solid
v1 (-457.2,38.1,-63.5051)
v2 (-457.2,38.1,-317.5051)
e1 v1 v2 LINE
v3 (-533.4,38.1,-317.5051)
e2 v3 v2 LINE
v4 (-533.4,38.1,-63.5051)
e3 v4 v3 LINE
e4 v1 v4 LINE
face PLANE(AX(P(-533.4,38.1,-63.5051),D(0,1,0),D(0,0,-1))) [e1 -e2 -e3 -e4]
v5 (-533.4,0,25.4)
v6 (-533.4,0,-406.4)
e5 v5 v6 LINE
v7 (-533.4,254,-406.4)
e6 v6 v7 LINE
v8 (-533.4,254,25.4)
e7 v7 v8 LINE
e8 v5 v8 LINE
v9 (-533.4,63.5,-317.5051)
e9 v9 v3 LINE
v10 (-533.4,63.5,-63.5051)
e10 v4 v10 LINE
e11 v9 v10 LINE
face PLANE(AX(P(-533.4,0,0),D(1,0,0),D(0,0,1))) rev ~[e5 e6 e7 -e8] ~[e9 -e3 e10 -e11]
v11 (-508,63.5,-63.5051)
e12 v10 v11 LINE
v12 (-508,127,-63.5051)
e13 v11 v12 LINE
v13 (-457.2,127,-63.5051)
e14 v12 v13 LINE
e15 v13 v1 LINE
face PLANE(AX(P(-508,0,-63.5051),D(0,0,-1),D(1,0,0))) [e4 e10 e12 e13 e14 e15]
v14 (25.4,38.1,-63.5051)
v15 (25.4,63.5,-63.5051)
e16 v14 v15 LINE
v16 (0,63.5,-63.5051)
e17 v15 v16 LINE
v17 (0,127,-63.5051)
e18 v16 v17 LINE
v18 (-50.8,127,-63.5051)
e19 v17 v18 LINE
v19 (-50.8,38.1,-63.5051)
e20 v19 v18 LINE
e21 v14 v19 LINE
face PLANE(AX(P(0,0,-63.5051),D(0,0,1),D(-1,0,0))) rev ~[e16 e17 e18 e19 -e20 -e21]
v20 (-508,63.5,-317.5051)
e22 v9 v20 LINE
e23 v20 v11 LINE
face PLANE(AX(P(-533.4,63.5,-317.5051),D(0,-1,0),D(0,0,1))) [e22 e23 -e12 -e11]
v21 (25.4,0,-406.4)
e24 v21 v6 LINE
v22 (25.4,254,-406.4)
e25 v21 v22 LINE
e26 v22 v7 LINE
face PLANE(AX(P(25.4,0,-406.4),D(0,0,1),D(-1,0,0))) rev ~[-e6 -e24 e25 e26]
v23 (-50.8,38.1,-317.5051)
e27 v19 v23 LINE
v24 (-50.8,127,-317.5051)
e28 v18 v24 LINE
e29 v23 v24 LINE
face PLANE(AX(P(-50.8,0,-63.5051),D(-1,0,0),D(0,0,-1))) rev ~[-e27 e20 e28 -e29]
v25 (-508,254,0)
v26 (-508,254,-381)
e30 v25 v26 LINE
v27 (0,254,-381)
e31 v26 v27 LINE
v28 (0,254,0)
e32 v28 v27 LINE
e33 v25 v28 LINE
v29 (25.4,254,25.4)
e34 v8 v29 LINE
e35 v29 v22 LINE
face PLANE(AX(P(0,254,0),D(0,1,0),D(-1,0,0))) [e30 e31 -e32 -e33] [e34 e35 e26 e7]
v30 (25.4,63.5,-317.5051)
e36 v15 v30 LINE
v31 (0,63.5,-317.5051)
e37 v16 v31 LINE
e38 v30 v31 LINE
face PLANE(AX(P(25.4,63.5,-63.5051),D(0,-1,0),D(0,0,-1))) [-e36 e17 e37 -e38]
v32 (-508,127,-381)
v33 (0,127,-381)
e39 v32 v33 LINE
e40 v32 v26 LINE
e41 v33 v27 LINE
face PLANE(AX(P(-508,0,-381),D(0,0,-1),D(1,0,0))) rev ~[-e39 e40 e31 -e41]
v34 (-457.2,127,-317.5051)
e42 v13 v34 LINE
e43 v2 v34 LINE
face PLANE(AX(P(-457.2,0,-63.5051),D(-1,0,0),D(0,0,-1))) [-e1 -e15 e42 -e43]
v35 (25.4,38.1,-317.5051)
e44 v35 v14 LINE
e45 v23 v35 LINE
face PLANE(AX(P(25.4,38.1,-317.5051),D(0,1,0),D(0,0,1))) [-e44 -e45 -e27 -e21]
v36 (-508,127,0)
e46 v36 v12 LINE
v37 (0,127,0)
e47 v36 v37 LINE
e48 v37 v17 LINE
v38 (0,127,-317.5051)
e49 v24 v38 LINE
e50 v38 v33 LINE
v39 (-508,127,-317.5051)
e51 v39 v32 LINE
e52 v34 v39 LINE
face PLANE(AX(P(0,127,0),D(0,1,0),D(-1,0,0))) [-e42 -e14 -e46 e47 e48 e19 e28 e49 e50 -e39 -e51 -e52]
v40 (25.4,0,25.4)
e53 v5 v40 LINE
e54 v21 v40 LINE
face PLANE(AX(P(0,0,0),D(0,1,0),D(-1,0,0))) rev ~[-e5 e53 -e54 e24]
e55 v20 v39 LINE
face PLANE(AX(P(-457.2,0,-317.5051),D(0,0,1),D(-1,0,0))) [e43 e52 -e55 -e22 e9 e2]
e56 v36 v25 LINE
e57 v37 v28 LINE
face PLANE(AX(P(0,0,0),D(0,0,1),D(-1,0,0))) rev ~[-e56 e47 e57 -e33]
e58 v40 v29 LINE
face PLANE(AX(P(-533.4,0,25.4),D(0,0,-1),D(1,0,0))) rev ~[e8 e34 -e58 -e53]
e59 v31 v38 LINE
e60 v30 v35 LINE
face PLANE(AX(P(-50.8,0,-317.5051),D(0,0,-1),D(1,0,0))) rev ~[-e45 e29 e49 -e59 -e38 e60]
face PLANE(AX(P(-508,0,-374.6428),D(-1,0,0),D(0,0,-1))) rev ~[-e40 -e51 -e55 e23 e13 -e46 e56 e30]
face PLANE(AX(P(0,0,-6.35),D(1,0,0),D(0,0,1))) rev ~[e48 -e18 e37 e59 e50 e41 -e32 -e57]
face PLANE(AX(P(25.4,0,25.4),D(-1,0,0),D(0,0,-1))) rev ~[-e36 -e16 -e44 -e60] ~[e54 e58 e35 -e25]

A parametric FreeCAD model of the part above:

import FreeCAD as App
import Part
import Sketcher

V = App.Vector
Q = App.Units.Quantity

doc = App.newDocument("Part")
params = doc.addObject("Spreadsheet::Sheet", "Params")
for row, (alias, value) in enumerate([
    ("sketch1_width", "22 in"),
    ("sketch1_width2", "20 in"),
    ("sketch1_height", "17 in"),
    ("sketch1_height2", "15 in"),
    ("pad1_length", "10 in"),
    ("sketch2_width", "20 in"),
    ("sketch2_width2", "2 in"),
    ("sketch2_height", "10 in"),
    ("sketch2_height2", "0.25 in"),
    ("pad2_length", "5 in"),
    ("sketch3_width", "2 in"),
    ("pad3_length", "5 in"),
    ("sketch4_width", "2 in"),
    ("sketch4_height", "10 in"),
    ("pad4_length", "1.5 in"),
    ("sketch5_width", "1 in"),
    ("sketch5_height", "10 in"),
    ("pocket1_length", "3 in"),
    ("sketch6_width", "1 in"),
    ("sketch6_height", "10 in"),
    ("pocket2_length", "3 in"),
], start=1):
    params.set(f"A{row}", alias)
    params.set(f"B{row}", "=" + value)
    params.setAlias(f"B{row}", alias)

body = doc.addObject("PartDesign::Body", "Body")

sketch1 = doc.addObject("Sketcher::SketchObject", "Sketch")
body.addObject(sketch1)
sketch1.AttachmentSupport = (doc.XZ_Plane, [""])
sketch1.MapMode = "FlatFace"
sketch1.addGeometry([
    Part.LineSegment(V(25, 25, 0), V(25, -406, 0)),
    Part.LineSegment(V(25, -406, 0), V(-533, -406, 0)),
    Part.LineSegment(V(-533, -406, 0), V(-533, 25, 0)),
    Part.LineSegment(V(-533, 25, 0), V(25, 25, 0)),
    Part.LineSegment(V(0, 0, 0), V(-508, 0, 0)),
    Part.LineSegment(V(-508, 0, 0), V(-508, -381, 0)),
    Part.LineSegment(V(-508, -381, 0), V(0, -381, 0)),
    Part.LineSegment(V(0, -381, 0), V(0, 0, 0)),
], False)
sketch1.addConstraint([
    Sketcher.Constraint("Coincident", 0, 2, 1, 1),
    Sketcher.Constraint("Coincident", 1, 2, 2, 1),
    Sketcher.Constraint("Coincident", 2, 2, 3, 1),
    Sketcher.Constraint("Coincident", 3, 2, 0, 1),
    Sketcher.Constraint("Coincident", 4, 2, 5, 1),
    Sketcher.Constraint("Coincident", 5, 2, 6, 1),
    Sketcher.Constraint("Coincident", 6, 2, 7, 1),
    Sketcher.Constraint("Coincident", 7, 2, 4, 1),
    Sketcher.Constraint("Vertical", 0),
    Sketcher.Constraint("Horizontal", 1),
    Sketcher.Constraint("Vertical", 2),
    Sketcher.Constraint("Horizontal", 3),
    Sketcher.Constraint("Horizontal", 4),
    Sketcher.Constraint("Vertical", 5),
    Sketcher.Constraint("Horizontal", 6),
    Sketcher.Constraint("Vertical", 7),
    Sketcher.Constraint("Coincident", 7, 2, -1, 1),
    Sketcher.Constraint("DistanceX", 1, 2, 1, 1, Q("22 in")),
    Sketcher.Constraint("DistanceX", 4, 2, 4, 1, Q("20 in")),
    Sketcher.Constraint("DistanceY", 0, 2, 0, 1, Q("17 in")),
    Sketcher.Constraint("DistanceY", 5, 2, 5, 1, Q("15 in")),
    Sketcher.Constraint("DistanceX", -1, 1, 0, 2, Q("1 in")),
    Sketcher.Constraint("DistanceY", 0, 2, -1, 1, Q("16 in")),
])
sketch1.setExpression("Constraints[17]", "Params.sketch1_width")
sketch1.setExpression("Constraints[18]", "Params.sketch1_width2")
sketch1.setExpression("Constraints[19]", "Params.sketch1_height")
sketch1.setExpression("Constraints[20]", "Params.sketch1_height2")
pad1 = doc.addObject("PartDesign::Pad", "Pad")
body.addObject(pad1)
pad1.Profile = sketch1
pad1.setExpression("Length", "Params.pad1_length")
pad1.Reversed = True

sketch2 = doc.addObject("Sketcher::SketchObject", "Sketch001")
body.addObject(sketch2)
sketch2.AttachmentSupport = (doc.XZ_Plane, [""])
sketch2.MapMode = "FlatFace"
sketch2.addGeometry([
    Part.LineSegment(V(-508, 0, 0), V(0, 0, 0)),
    Part.LineSegment(V(0, 0, 0), V(0, -6, 0)),
    Part.LineSegment(V(0, -6, 0), V(-51, -6, 0)),
    Part.LineSegment(V(-51, -6, 0), V(-51, -57, 0)),
    Part.LineSegment(V(-51, -57, 0), V(0, -57, 0)),
    Part.LineSegment(V(0, -57, 0), V(0, -64, 0)),
    Part.LineSegment(V(0, -64, 0), V(-51, -64, 0)),
    Part.LineSegment(V(-51, -64, 0), V(-51, -318, 0)),
    Part.LineSegment(V(-51, -318, 0), V(0, -318, 0)),
    Part.LineSegment(V(0, -318, 0), V(0, -324, 0)),
    Part.LineSegment(V(0, -324, 0), V(-51, -324, 0)),
    Part.LineSegment(V(-51, -324, 0), V(-51, -375, 0)),
    Part.LineSegment(V(-51, -375, 0), V(0, -375, 0)),
    Part.LineSegment(V(0, -375, 0), V(0, -381, 0)),
    Part.LineSegment(V(0, -381, 0), V(-508, -381, 0)),
    Part.LineSegment(V(-508, -381, 0), V(-508, -375, 0)),
    Part.LineSegment(V(-508, -375, 0), V(-457, -375, 0)),
    Part.LineSegment(V(-457, -375, 0), V(-457, -324, 0)),
    Part.LineSegment(V(-457, -324, 0), V(-508, -324, 0)),
    Part.LineSegment(V(-508, -324, 0), V(-508, -318, 0)),
    Part.LineSegment(V(-508, -318, 0), V(-457, -318, 0)),
    Part.LineSegment(V(-457, -318, 0), V(-457, -64, 0)),
    Part.LineSegment(V(-457, -64, 0), V(-508, -64, 0)),
    Part.LineSegment(V(-508, -64, 0), V(-508, -57, 0)),
    Part.LineSegment(V(-508, -57, 0), V(-457, -57, 0)),
    Part.LineSegment(V(-457, -57, 0), V(-457, -6, 0)),
    Part.LineSegment(V(-457, -6, 0), V(-508, -6, 0)),
    Part.LineSegment(V(-508, -6, 0), V(-508, 0, 0)),
], False)
sketch2.addConstraint([
    Sketcher.Constraint("Coincident", 0, 2, 1, 1),
    Sketcher.Constraint("Coincident", 1, 2, 2, 1),
    Sketcher.Constraint("Coincident", 2, 2, 3, 1),
    Sketcher.Constraint("Coincident", 3, 2, 4, 1),
    Sketcher.Constraint("Coincident", 4, 2, 5, 1),
    Sketcher.Constraint("Coincident", 5, 2, 6, 1),
    Sketcher.Constraint("Coincident", 6, 2, 7, 1),
    Sketcher.Constraint("Coincident", 7, 2, 8, 1),
    Sketcher.Constraint("Coincident", 8, 2, 9, 1),
    Sketcher.Constraint("Coincident", 9, 2, 10, 1),
    Sketcher.Constraint("Coincident", 10, 2, 11, 1),
    Sketcher.Constraint("Coincident", 11, 2, 12, 1),
    Sketcher.Constraint("Coincident", 12, 2, 13, 1),
    Sketcher.Constraint("Coincident", 13, 2, 14, 1),
    Sketcher.Constraint("Coincident", 14, 2, 15, 1),
    Sketcher.Constraint("Coincident", 15, 2, 16, 1),
    Sketcher.Constraint("Coincident", 16, 2, 17, 1),
    Sketcher.Constraint("Coincident", 17, 2, 18, 1),
    Sketcher.Constraint("Coincident", 18, 2, 19, 1),
    Sketcher.Constraint("Coincident", 19, 2, 20, 1),
    Sketcher.Constraint("Coincident", 20, 2, 21, 1),
    Sketcher.Constraint("Coincident", 21, 2, 22, 1),
    Sketcher.Constraint("Coincident", 22, 2, 23, 1),
    Sketcher.Constraint("Coincident", 23, 2, 24, 1),
    Sketcher.Constraint("Coincident", 24, 2, 25, 1),
    Sketcher.Constraint("Coincident", 25, 2, 26, 1),
    Sketcher.Constraint("Coincident", 26, 2, 27, 1),
    Sketcher.Constraint("Coincident", 27, 2, 0, 1),
    Sketcher.Constraint("Horizontal", 0),
    Sketcher.Constraint("Vertical", 1),
    Sketcher.Constraint("Horizontal", 2),
    Sketcher.Constraint("Vertical", 3),
    Sketcher.Constraint("Horizontal", 4),
    Sketcher.Constraint("Vertical", 5),
    Sketcher.Constraint("Horizontal", 6),
    Sketcher.Constraint("Vertical", 7),
    Sketcher.Constraint("Horizontal", 8),
    Sketcher.Constraint("Vertical", 9),
    Sketcher.Constraint("Horizontal", 10),
    Sketcher.Constraint("Vertical", 11),
    Sketcher.Constraint("Horizontal", 12),
    Sketcher.Constraint("Vertical", 13),
    Sketcher.Constraint("Horizontal", 14),
    Sketcher.Constraint("Vertical", 15),
    Sketcher.Constraint("Horizontal", 16),
    Sketcher.Constraint("Vertical", 17),
    Sketcher.Constraint("Horizontal", 18),
    Sketcher.Constraint("Vertical", 19),
    Sketcher.Constraint("Horizontal", 20),
    Sketcher.Constraint("Vertical", 21),
    Sketcher.Constraint("Horizontal", 22),
    Sketcher.Constraint("Vertical", 23),
    Sketcher.Constraint("Horizontal", 24),
    Sketcher.Constraint("Vertical", 25),
    Sketcher.Constraint("Horizontal", 26),
    Sketcher.Constraint("Vertical", 27),
    Sketcher.Constraint("Coincident", 0, 2, -1, 1),
    Sketcher.Constraint("PointOnObject", 4, 2, -2),
    Sketcher.Constraint("PointOnObject", 8, 2, -2),
    Sketcher.Constraint("PointOnObject", 12, 2, -2),
    Sketcher.Constraint("Horizontal", 12, 2, 15, 2),
    Sketcher.Constraint("Horizontal", 10, 2, 17, 2),
    Sketcher.Constraint("Horizontal", 8, 2, 19, 2),
    Sketcher.Constraint("Horizontal", 6, 2, 21, 2),
    Sketcher.Constraint("Horizontal", 4, 2, 23, 2),
    Sketcher.Constraint("Horizontal", 2, 2, 25, 2),
    Sketcher.Constraint("Vertical", 3, 2, 6, 2),
    Sketcher.Constraint("Vertical", 7, 2, 10, 2),
    Sketcher.Constraint("Vertical", 15, 2, 18, 2),
    Sketcher.Constraint("Vertical", 17, 2, 20, 2),
    Sketcher.Constraint("Vertical", 19, 2, 22, 2),
    Sketcher.Constraint("Vertical", 21, 2, 24, 2),
    Sketcher.Constraint("Vertical", 23, 2, 26, 2),
    Sketcher.Constraint("Equal", 12, 16),
    Sketcher.Constraint("Equal", 1, 5),
    Sketcher.Constraint("DistanceX", 0, 1, 0, 2, Q("20 in")),
    Sketcher.Constraint("DistanceX", 2, 2, 2, 1, Q("2 in")),
    Sketcher.Constraint("DistanceY", 7, 2, 7, 1, Q("10 in")),
    Sketcher.Constraint("DistanceY", 13, 2, -1, 1, Q("15 in")),
    Sketcher.Constraint("DistanceY", 1, 2, 1, 1, Q("0.25 in")),
    Sketcher.Constraint("DistanceY", 3, 2, 3, 1, Q("2.0002 in")),
    Sketcher.Constraint("DistanceY", 11, 2, 11, 1, Q("1.9998 in")),
    Sketcher.Constraint("DistanceY", 9, 2, 9, 1, 6.3427),
])
sketch2.setExpression("Constraints[75]", "Params.sketch2_width")
sketch2.setExpression("Constraints[76]", "Params.sketch2_width2")
sketch2.setExpression("Constraints[77]", "Params.sketch2_height")
sketch2.setExpression("Constraints[79]", "Params.sketch2_height2")
pad2 = doc.addObject("PartDesign::Pad", "Pad001")
body.addObject(pad2)
pad2.Profile = sketch2
pad2.setExpression("Length", "Params.pad2_length")
pad2.Reversed = True

sketch3 = doc.addObject("Sketcher::SketchObject", "Sketch002")
body.addObject(sketch3)
sketch3.AttachmentSupport = (doc.XZ_Plane, [""])
sketch3.MapMode = "FlatFace"
sketch3.addGeometry([
    Part.LineSegment(V(-51, -6, 0), V(0, -6, 0)),
    Part.LineSegment(V(0, -6, 0), V(0, -57, 0)),
    Part.LineSegment(V(0, -57, 0), V(-51, -57, 0)),
    Part.LineSegment(V(-51, -57, 0), V(-51, -6, 0)),
    Part.LineSegment(V(-508, -57, 0), V(-508, -6, 0)),
    Part.LineSegment(V(-508, -6, 0), V(-457, -6, 0)),
    Part.LineSegment(V(-457, -6, 0), V(-457, -57, 0)),
    Part.LineSegment(V(-457, -57, 0), V(-508, -57, 0)),
    Part.LineSegment(V(-508, -375, 0), V(-508, -324, 0)),
    Part.LineSegment(V(-508, -324, 0), V(-457, -324, 0)),
    Part.LineSegment(V(-457, -324, 0), V(-457, -375, 0)),
    Part.LineSegment(V(-457, -375, 0), V(-508, -375, 0)),
    Part.LineSegment(V(-51, -324, 0), V(0, -324, 0)),
    Part.LineSegment(V(0, -324, 0), V(0, -375, 0)),
    Part.LineSegment(V(0, -375, 0), V(-51, -375, 0)),
    Part.LineSegment(V(-51, -375, 0), V(-51, -324, 0)),
], False)
sketch3.addConstraint([
    Sketcher.Constraint("Coincident", 0, 2, 1, 1),
    Sketcher.Constraint("Coincident", 1, 2, 2, 1),
    Sketcher.Constraint("Coincident", 2, 2, 3, 1),
    Sketcher.Constraint("Coincident", 3, 2, 0, 1),
    Sketcher.Constraint("Coincident", 4, 2, 5, 1),
    Sketcher.Constraint("Coincident", 5, 2, 6, 1),
    Sketcher.Constraint("Coincident", 6, 2, 7, 1),
    Sketcher.Constraint("Coincident", 7, 2, 4, 1),
    Sketcher.Constraint("Coincident", 8, 2, 9, 1),
    Sketcher.Constraint("Coincident", 9, 2, 10, 1),
    Sketcher.Constraint("Coincident", 10, 2, 11, 1),
    Sketcher.Constraint("Coincident", 11, 2, 8, 1),
    Sketcher.Constraint("Coincident", 12, 2, 13, 1),
    Sketcher.Constraint("Coincident", 13, 2, 14, 1),
    Sketcher.Constraint("Coincident", 14, 2, 15, 1),
    Sketcher.Constraint("Coincident", 15, 2, 12, 1),
    Sketcher.Constraint("Horizontal", 0),
    Sketcher.Constraint("Vertical", 1),
    Sketcher.Constraint("Horizontal", 2),
    Sketcher.Constraint("Vertical", 3),
    Sketcher.Constraint("Vertical", 4),
    Sketcher.Constraint("Horizontal", 5),
    Sketcher.Constraint("Vertical", 6),
    Sketcher.Constraint("Horizontal", 7),
    Sketcher.Constraint("Vertical", 8),
    Sketcher.Constraint("Horizontal", 9),
    Sketcher.Constraint("Vertical", 10),
    Sketcher.Constraint("Horizontal", 11),
    Sketcher.Constraint("Horizontal", 12),
    Sketcher.Constraint("Vertical", 13),
    Sketcher.Constraint("Horizontal", 14),
    Sketcher.Constraint("Vertical", 15),
    Sketcher.Constraint("PointOnObject", 0, 2, -2),
    Sketcher.Constraint("PointOnObject", 12, 2, -2),
    Sketcher.Constraint("Horizontal", 3, 2, 4, 2),
    Sketcher.Constraint("Horizontal", 2, 2, 6, 2),
    Sketcher.Constraint("Horizontal", 9, 2, 12, 2),
    Sketcher.Constraint("Horizontal", 11, 2, 13, 2),
    Sketcher.Constraint("Vertical", 7, 2, 8, 2),
    Sketcher.Constraint("Vertical", 6, 2, 9, 2),
    Sketcher.Constraint("Vertical", 3, 2, 14, 2),
    Sketcher.Constraint("Equal", 2, 5),
    Sketcher.Constraint("DistanceX", 0, 1, 0, 2, Q("2 in")),
    Sketcher.Constraint("DistanceX", 4, 2, -1, 1, Q("20 in")),
    Sketcher.Constraint("DistanceY", 0, 2, -1, 1, Q("0.25 in")),
    Sketcher.Constraint("DistanceY", 1, 2, 1, 1, Q("2.0002 in")),
    Sketcher.Constraint("DistanceY", 8, 1, 8, 2, Q("1.9998 in")),
    Sketcher.Constraint("DistanceY", 8, 2, -1, 1, 323.8478),
])
sketch3.setExpression("Constraints[42]", "Params.sketch3_width")
pad3 = doc.addObject("PartDesign::Pad", "Pad002")
body.addObject(pad3)
pad3.Profile = sketch3
pad3.setExpression("Length", "Params.pad3_length")
pad3.Reversed = True

sketch4 = doc.addObject("Sketcher::SketchObject", "Sketch003")
body.addObject(sketch4)
sketch4.AttachmentSupport = (doc.XZ_Plane, [""])
sketch4.MapMode = "FlatFace"
sketch4.addGeometry([
    Part.LineSegment(V(-51, -64, 0), V(0, -64, 0)),
    Part.LineSegment(V(0, -64, 0), V(0, -318, 0)),
    Part.LineSegment(V(0, -318, 0), V(-51, -318, 0)),
    Part.LineSegment(V(-51, -318, 0), V(-51, -64, 0)),
    Part.LineSegment(V(-508, -318, 0), V(-508, -64, 0)),
    Part.LineSegment(V(-508, -64, 0), V(-457, -64, 0)),
    Part.LineSegment(V(-457, -64, 0), V(-457, -318, 0)),
    Part.LineSegment(V(-457, -318, 0), V(-508, -318, 0)),
], False)
sketch4.addConstraint([
    Sketcher.Constraint("Coincident", 0, 2, 1, 1),
    Sketcher.Constraint("Coincident", 1, 2, 2, 1),
    Sketcher.Constraint("Coincident", 2, 2, 3, 1),
    Sketcher.Constraint("Coincident", 3, 2, 0, 1),
    Sketcher.Constraint("Coincident", 4, 2, 5, 1),
    Sketcher.Constraint("Coincident", 5, 2, 6, 1),
    Sketcher.Constraint("Coincident", 6, 2, 7, 1),
    Sketcher.Constraint("Coincident", 7, 2, 4, 1),
    Sketcher.Constraint("Horizontal", 0),
    Sketcher.Constraint("Vertical", 1),
    Sketcher.Constraint("Horizontal", 2),
    Sketcher.Constraint("Vertical", 3),
    Sketcher.Constraint("Vertical", 4),
    Sketcher.Constraint("Horizontal", 5),
    Sketcher.Constraint("Vertical", 6),
    Sketcher.Constraint("Horizontal", 7),
    Sketcher.Constraint("PointOnObject", 0, 2, -2),
    Sketcher.Constraint("Horizontal", 3, 2, 4, 2),
    Sketcher.Constraint("Horizontal", 2, 2, 6, 2),
    Sketcher.Constraint("Equal", 2, 5),
    Sketcher.Constraint("DistanceX", 0, 1, 0, 2, Q("2 in")),
    Sketcher.Constraint("DistanceY", 1, 2, 1, 1, Q("10 in")),
    Sketcher.Constraint("DistanceX", 4, 2, -1, 1, Q("20 in")),
    Sketcher.Constraint("DistanceY", 0, 2, -1, 1, Q("2.5002 in")),
])
sketch4.setExpression("Constraints[20]", "Params.sketch4_width")
sketch4.setExpression("Constraints[21]", "Params.sketch4_height")
pad4 = doc.addObject("PartDesign::Pad", "Pad003")
body.addObject(pad4)
pad4.Profile = sketch4
pad4.setExpression("Length", "Params.pad4_length")
pad4.Reversed = True

sketch5 = doc.addObject("Sketcher::SketchObject", "Sketch004")
body.addObject(sketch5)
sketch5.AttachmentSupport = (doc.YZ_Plane, [""])
sketch5.MapMode = "FlatFace"
sketch5.AttachmentOffset = App.Placement(V(0, 0, 1 * 25.4), App.Rotation())
sketch5.addGeometry([
    Part.LineSegment(V(38, -64, 0), V(38, -318, 0)),
    Part.LineSegment(V(38, -318, 0), V(64, -318, 0)),
    Part.LineSegment(V(64, -318, 0), V(64, -64, 0)),
    Part.LineSegment(V(64, -64, 0), V(38, -64, 0)),
], False)
sketch5.addConstraint([
    Sketcher.Constraint("Coincident", 0, 2, 1, 1),
    Sketcher.Constraint("Coincident", 1, 2, 2, 1),
    Sketcher.Constraint("Coincident", 2, 2, 3, 1),
    Sketcher.Constraint("Coincident", 3, 2, 0, 1),
    Sketcher.Constraint("Vertical", 0),
    Sketcher.Constraint("Horizontal", 1),
    Sketcher.Constraint("Vertical", 2),
    Sketcher.Constraint("Horizontal", 3),
    Sketcher.Constraint("DistanceX", 1, 1, 1, 2, Q("1 in")),
    Sketcher.Constraint("DistanceY", 0, 2, 0, 1, Q("10 in")),
    Sketcher.Constraint("DistanceX", -1, 1, 0, 2, Q("1.5 in")),
    Sketcher.Constraint("DistanceY", 0, 2, -1, 1, Q("12.5002 in")),
])
sketch5.setExpression("Constraints[8]", "Params.sketch5_width")
sketch5.setExpression("Constraints[9]", "Params.sketch5_height")
pocket1 = doc.addObject("PartDesign::Pocket", "Pocket")
body.addObject(pocket1)
pocket1.Profile = sketch5
pocket1.setExpression("Length", "Params.pocket1_length")

sketch6 = doc.addObject("Sketcher::SketchObject", "Sketch005")
body.addObject(sketch6)
sketch6.AttachmentSupport = (doc.YZ_Plane, [""])
sketch6.MapMode = "FlatFace"
sketch6.AttachmentOffset = App.Placement(V(0, 0, -21 * 25.4), App.Rotation())
sketch6.addGeometry([
    Part.LineSegment(V(64, -64, 0), V(64, -318, 0)),
    Part.LineSegment(V(64, -318, 0), V(38, -318, 0)),
    Part.LineSegment(V(38, -318, 0), V(38, -64, 0)),
    Part.LineSegment(V(38, -64, 0), V(64, -64, 0)),
], False)
sketch6.addConstraint([
    Sketcher.Constraint("Coincident", 0, 2, 1, 1),
    Sketcher.Constraint("Coincident", 1, 2, 2, 1),
    Sketcher.Constraint("Coincident", 2, 2, 3, 1),
    Sketcher.Constraint("Coincident", 3, 2, 0, 1),
    Sketcher.Constraint("Vertical", 0),
    Sketcher.Constraint("Horizontal", 1),
    Sketcher.Constraint("Vertical", 2),
    Sketcher.Constraint("Horizontal", 3),
    Sketcher.Constraint("DistanceX", 1, 2, 1, 1, Q("1 in")),
    Sketcher.Constraint("DistanceY", 0, 2, 0, 1, Q("10 in")),
    Sketcher.Constraint("DistanceX", -1, 1, 0, 2, Q("2.5 in")),
    Sketcher.Constraint("DistanceY", 0, 2, -1, 1, Q("12.5002 in")),
])
sketch6.setExpression("Constraints[8]", "Params.sketch6_width")
sketch6.setExpression("Constraints[9]", "Params.sketch6_height")
pocket2 = doc.addObject("PartDesign::Pocket", "Pocket001")
body.addObject(pocket2)
pocket2.Profile = sketch6
pocket2.setExpression("Length", "Params.pocket2_length")
pocket2.Reversed = True

doc.recompute()
